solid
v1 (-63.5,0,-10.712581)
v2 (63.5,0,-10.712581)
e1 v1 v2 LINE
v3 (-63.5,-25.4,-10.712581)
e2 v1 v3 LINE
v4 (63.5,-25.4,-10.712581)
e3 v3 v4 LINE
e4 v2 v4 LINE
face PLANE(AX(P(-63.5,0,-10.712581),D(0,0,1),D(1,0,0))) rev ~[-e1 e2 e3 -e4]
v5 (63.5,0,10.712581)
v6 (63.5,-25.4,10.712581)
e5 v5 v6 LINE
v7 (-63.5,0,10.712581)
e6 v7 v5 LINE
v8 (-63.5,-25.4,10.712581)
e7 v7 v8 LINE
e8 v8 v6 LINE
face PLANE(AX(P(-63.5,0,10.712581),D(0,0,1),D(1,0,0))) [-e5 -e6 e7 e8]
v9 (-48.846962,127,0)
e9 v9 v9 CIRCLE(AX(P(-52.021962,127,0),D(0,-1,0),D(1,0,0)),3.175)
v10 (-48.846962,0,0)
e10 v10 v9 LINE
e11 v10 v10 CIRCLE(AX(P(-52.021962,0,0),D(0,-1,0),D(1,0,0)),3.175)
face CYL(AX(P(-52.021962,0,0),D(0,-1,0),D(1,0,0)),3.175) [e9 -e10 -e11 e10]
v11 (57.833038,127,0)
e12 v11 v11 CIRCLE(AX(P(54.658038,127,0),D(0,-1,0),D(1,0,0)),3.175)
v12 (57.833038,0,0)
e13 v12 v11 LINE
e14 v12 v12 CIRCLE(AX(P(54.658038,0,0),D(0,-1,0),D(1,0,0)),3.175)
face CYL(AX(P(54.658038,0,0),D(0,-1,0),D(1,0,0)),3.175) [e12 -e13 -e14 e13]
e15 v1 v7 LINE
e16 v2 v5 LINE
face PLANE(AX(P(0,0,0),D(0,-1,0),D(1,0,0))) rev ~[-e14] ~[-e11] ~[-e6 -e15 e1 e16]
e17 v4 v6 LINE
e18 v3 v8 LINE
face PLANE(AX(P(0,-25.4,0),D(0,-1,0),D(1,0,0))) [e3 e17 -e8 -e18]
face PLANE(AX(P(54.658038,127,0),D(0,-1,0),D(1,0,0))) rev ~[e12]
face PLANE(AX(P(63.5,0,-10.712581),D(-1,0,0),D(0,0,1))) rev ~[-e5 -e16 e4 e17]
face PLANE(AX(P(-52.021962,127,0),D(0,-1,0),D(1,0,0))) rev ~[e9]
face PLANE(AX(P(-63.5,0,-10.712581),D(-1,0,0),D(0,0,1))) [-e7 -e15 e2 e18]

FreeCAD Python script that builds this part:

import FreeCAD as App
import Part
import Sketcher
from FreeCAD import Vector
Q = App.Units.Quantity


def add_polygon(sketch, points):
    """Adds a closed chain of lines whose ends are joined by coincident constraints."""
    first, n = sketch.GeometryCount, len(points)
    for a, b in zip(points, points[1:] + points[:1]):
        sketch.addGeometry(Part.LineSegment(App.Vector(*a, 0), App.Vector(*b, 0)), False)
    for i in range(n):
        sketch.addConstraint(Sketcher.Constraint("Coincident", first + i, 2, first + (i + 1) % n, 1))

doc = App.newDocument("Part")
params = doc.addObject("Spreadsheet::Sheet", "Params")
for row, (alias, value) in enumerate([
    ("sketch1_width", "5 in"),
    ("pad1_length", "1 in"),
    ("sketch2_diameter", "0.25 in"),
    ("pad2_length", "5 in"),
], start=1):
    params.set(f"A{row}", alias)
    params.set(f"B{row}", "=" + value)
    params.setAlias(f"B{row}", alias)

body = doc.addObject("PartDesign::Body", "Body")

# Sketch on XZ plane
sketch1 = body.newObject("Sketcher::SketchObject", "Sketch")
sketch1.AttachmentSupport = (doc.getObject("XZ_Plane"), [""])
sketch1.MapMode = "FlatFace"
add_polygon(sketch1, [(-64, 11), (-64, -11), (64, -11), (64, 11)])  # lines 0-3
sketch1.addConstraint([
    Sketcher.Constraint("Vertical", 0),
    Sketcher.Constraint("Horizontal", 1),
    Sketcher.Constraint("Vertical", 2),
    Sketcher.Constraint("Horizontal", 3),
    Sketcher.Constraint("Symmetric", 0, 2, 2, 2, -1, 1),
    Sketcher.Constraint("DistanceX", 1, 1, 1, 2, Q("5 in")),
    Sketcher.Constraint("DistanceY", 0, 2, 0, 1, 21.425162),
])
sketch1.setExpression("Constraints[9]", "Params.sketch1_width")
pad1 = body.newObject("PartDesign::Pad", "Pad")
pad1.Profile = sketch1
pad1.setExpression("Length", "Params.pad1_length")

# Sketch on XZ plane
sketch2 = body.newObject("Sketcher::SketchObject", "Sketch001")
sketch2.AttachmentSupport = (doc.getObject("XZ_Plane"), [""])
sketch2.MapMode = "FlatFace"
sketch2.addGeometry([
    Part.Circle(Vector(54.7, 0, 0), Vector(0, 0, 1), 3.2),
    Part.Circle(Vector(-52, 0, 0), Vector(0, 0, 1), 3.2),
], False)
sketch2.addConstraint([
    Sketcher.Constraint("Equal", 0, 1),
    Sketcher.Constraint("PointOnObject", 0, 3, -1),
    Sketcher.Constraint("PointOnObject", 1, 3, -1),
    Sketcher.Constraint("Diameter", 0, Q("0.25 in")),
    Sketcher.Constraint("DistanceX", 1, 3, 0, 3, Q("4.2 in")),
    Sketcher.Constraint("DistanceX", -1, 1, 0, 3, 54.658038),
])
sketch2.setExpression("Constraints[3]", "Params.sketch2_diameter")
pad2 = body.newObject("PartDesign::Pad", "Pad001")
pad2.Profile = sketch2
pad2.setExpression("Length", "Params.pad2_length")
pad2.Reversed = True

doc.recompute()
